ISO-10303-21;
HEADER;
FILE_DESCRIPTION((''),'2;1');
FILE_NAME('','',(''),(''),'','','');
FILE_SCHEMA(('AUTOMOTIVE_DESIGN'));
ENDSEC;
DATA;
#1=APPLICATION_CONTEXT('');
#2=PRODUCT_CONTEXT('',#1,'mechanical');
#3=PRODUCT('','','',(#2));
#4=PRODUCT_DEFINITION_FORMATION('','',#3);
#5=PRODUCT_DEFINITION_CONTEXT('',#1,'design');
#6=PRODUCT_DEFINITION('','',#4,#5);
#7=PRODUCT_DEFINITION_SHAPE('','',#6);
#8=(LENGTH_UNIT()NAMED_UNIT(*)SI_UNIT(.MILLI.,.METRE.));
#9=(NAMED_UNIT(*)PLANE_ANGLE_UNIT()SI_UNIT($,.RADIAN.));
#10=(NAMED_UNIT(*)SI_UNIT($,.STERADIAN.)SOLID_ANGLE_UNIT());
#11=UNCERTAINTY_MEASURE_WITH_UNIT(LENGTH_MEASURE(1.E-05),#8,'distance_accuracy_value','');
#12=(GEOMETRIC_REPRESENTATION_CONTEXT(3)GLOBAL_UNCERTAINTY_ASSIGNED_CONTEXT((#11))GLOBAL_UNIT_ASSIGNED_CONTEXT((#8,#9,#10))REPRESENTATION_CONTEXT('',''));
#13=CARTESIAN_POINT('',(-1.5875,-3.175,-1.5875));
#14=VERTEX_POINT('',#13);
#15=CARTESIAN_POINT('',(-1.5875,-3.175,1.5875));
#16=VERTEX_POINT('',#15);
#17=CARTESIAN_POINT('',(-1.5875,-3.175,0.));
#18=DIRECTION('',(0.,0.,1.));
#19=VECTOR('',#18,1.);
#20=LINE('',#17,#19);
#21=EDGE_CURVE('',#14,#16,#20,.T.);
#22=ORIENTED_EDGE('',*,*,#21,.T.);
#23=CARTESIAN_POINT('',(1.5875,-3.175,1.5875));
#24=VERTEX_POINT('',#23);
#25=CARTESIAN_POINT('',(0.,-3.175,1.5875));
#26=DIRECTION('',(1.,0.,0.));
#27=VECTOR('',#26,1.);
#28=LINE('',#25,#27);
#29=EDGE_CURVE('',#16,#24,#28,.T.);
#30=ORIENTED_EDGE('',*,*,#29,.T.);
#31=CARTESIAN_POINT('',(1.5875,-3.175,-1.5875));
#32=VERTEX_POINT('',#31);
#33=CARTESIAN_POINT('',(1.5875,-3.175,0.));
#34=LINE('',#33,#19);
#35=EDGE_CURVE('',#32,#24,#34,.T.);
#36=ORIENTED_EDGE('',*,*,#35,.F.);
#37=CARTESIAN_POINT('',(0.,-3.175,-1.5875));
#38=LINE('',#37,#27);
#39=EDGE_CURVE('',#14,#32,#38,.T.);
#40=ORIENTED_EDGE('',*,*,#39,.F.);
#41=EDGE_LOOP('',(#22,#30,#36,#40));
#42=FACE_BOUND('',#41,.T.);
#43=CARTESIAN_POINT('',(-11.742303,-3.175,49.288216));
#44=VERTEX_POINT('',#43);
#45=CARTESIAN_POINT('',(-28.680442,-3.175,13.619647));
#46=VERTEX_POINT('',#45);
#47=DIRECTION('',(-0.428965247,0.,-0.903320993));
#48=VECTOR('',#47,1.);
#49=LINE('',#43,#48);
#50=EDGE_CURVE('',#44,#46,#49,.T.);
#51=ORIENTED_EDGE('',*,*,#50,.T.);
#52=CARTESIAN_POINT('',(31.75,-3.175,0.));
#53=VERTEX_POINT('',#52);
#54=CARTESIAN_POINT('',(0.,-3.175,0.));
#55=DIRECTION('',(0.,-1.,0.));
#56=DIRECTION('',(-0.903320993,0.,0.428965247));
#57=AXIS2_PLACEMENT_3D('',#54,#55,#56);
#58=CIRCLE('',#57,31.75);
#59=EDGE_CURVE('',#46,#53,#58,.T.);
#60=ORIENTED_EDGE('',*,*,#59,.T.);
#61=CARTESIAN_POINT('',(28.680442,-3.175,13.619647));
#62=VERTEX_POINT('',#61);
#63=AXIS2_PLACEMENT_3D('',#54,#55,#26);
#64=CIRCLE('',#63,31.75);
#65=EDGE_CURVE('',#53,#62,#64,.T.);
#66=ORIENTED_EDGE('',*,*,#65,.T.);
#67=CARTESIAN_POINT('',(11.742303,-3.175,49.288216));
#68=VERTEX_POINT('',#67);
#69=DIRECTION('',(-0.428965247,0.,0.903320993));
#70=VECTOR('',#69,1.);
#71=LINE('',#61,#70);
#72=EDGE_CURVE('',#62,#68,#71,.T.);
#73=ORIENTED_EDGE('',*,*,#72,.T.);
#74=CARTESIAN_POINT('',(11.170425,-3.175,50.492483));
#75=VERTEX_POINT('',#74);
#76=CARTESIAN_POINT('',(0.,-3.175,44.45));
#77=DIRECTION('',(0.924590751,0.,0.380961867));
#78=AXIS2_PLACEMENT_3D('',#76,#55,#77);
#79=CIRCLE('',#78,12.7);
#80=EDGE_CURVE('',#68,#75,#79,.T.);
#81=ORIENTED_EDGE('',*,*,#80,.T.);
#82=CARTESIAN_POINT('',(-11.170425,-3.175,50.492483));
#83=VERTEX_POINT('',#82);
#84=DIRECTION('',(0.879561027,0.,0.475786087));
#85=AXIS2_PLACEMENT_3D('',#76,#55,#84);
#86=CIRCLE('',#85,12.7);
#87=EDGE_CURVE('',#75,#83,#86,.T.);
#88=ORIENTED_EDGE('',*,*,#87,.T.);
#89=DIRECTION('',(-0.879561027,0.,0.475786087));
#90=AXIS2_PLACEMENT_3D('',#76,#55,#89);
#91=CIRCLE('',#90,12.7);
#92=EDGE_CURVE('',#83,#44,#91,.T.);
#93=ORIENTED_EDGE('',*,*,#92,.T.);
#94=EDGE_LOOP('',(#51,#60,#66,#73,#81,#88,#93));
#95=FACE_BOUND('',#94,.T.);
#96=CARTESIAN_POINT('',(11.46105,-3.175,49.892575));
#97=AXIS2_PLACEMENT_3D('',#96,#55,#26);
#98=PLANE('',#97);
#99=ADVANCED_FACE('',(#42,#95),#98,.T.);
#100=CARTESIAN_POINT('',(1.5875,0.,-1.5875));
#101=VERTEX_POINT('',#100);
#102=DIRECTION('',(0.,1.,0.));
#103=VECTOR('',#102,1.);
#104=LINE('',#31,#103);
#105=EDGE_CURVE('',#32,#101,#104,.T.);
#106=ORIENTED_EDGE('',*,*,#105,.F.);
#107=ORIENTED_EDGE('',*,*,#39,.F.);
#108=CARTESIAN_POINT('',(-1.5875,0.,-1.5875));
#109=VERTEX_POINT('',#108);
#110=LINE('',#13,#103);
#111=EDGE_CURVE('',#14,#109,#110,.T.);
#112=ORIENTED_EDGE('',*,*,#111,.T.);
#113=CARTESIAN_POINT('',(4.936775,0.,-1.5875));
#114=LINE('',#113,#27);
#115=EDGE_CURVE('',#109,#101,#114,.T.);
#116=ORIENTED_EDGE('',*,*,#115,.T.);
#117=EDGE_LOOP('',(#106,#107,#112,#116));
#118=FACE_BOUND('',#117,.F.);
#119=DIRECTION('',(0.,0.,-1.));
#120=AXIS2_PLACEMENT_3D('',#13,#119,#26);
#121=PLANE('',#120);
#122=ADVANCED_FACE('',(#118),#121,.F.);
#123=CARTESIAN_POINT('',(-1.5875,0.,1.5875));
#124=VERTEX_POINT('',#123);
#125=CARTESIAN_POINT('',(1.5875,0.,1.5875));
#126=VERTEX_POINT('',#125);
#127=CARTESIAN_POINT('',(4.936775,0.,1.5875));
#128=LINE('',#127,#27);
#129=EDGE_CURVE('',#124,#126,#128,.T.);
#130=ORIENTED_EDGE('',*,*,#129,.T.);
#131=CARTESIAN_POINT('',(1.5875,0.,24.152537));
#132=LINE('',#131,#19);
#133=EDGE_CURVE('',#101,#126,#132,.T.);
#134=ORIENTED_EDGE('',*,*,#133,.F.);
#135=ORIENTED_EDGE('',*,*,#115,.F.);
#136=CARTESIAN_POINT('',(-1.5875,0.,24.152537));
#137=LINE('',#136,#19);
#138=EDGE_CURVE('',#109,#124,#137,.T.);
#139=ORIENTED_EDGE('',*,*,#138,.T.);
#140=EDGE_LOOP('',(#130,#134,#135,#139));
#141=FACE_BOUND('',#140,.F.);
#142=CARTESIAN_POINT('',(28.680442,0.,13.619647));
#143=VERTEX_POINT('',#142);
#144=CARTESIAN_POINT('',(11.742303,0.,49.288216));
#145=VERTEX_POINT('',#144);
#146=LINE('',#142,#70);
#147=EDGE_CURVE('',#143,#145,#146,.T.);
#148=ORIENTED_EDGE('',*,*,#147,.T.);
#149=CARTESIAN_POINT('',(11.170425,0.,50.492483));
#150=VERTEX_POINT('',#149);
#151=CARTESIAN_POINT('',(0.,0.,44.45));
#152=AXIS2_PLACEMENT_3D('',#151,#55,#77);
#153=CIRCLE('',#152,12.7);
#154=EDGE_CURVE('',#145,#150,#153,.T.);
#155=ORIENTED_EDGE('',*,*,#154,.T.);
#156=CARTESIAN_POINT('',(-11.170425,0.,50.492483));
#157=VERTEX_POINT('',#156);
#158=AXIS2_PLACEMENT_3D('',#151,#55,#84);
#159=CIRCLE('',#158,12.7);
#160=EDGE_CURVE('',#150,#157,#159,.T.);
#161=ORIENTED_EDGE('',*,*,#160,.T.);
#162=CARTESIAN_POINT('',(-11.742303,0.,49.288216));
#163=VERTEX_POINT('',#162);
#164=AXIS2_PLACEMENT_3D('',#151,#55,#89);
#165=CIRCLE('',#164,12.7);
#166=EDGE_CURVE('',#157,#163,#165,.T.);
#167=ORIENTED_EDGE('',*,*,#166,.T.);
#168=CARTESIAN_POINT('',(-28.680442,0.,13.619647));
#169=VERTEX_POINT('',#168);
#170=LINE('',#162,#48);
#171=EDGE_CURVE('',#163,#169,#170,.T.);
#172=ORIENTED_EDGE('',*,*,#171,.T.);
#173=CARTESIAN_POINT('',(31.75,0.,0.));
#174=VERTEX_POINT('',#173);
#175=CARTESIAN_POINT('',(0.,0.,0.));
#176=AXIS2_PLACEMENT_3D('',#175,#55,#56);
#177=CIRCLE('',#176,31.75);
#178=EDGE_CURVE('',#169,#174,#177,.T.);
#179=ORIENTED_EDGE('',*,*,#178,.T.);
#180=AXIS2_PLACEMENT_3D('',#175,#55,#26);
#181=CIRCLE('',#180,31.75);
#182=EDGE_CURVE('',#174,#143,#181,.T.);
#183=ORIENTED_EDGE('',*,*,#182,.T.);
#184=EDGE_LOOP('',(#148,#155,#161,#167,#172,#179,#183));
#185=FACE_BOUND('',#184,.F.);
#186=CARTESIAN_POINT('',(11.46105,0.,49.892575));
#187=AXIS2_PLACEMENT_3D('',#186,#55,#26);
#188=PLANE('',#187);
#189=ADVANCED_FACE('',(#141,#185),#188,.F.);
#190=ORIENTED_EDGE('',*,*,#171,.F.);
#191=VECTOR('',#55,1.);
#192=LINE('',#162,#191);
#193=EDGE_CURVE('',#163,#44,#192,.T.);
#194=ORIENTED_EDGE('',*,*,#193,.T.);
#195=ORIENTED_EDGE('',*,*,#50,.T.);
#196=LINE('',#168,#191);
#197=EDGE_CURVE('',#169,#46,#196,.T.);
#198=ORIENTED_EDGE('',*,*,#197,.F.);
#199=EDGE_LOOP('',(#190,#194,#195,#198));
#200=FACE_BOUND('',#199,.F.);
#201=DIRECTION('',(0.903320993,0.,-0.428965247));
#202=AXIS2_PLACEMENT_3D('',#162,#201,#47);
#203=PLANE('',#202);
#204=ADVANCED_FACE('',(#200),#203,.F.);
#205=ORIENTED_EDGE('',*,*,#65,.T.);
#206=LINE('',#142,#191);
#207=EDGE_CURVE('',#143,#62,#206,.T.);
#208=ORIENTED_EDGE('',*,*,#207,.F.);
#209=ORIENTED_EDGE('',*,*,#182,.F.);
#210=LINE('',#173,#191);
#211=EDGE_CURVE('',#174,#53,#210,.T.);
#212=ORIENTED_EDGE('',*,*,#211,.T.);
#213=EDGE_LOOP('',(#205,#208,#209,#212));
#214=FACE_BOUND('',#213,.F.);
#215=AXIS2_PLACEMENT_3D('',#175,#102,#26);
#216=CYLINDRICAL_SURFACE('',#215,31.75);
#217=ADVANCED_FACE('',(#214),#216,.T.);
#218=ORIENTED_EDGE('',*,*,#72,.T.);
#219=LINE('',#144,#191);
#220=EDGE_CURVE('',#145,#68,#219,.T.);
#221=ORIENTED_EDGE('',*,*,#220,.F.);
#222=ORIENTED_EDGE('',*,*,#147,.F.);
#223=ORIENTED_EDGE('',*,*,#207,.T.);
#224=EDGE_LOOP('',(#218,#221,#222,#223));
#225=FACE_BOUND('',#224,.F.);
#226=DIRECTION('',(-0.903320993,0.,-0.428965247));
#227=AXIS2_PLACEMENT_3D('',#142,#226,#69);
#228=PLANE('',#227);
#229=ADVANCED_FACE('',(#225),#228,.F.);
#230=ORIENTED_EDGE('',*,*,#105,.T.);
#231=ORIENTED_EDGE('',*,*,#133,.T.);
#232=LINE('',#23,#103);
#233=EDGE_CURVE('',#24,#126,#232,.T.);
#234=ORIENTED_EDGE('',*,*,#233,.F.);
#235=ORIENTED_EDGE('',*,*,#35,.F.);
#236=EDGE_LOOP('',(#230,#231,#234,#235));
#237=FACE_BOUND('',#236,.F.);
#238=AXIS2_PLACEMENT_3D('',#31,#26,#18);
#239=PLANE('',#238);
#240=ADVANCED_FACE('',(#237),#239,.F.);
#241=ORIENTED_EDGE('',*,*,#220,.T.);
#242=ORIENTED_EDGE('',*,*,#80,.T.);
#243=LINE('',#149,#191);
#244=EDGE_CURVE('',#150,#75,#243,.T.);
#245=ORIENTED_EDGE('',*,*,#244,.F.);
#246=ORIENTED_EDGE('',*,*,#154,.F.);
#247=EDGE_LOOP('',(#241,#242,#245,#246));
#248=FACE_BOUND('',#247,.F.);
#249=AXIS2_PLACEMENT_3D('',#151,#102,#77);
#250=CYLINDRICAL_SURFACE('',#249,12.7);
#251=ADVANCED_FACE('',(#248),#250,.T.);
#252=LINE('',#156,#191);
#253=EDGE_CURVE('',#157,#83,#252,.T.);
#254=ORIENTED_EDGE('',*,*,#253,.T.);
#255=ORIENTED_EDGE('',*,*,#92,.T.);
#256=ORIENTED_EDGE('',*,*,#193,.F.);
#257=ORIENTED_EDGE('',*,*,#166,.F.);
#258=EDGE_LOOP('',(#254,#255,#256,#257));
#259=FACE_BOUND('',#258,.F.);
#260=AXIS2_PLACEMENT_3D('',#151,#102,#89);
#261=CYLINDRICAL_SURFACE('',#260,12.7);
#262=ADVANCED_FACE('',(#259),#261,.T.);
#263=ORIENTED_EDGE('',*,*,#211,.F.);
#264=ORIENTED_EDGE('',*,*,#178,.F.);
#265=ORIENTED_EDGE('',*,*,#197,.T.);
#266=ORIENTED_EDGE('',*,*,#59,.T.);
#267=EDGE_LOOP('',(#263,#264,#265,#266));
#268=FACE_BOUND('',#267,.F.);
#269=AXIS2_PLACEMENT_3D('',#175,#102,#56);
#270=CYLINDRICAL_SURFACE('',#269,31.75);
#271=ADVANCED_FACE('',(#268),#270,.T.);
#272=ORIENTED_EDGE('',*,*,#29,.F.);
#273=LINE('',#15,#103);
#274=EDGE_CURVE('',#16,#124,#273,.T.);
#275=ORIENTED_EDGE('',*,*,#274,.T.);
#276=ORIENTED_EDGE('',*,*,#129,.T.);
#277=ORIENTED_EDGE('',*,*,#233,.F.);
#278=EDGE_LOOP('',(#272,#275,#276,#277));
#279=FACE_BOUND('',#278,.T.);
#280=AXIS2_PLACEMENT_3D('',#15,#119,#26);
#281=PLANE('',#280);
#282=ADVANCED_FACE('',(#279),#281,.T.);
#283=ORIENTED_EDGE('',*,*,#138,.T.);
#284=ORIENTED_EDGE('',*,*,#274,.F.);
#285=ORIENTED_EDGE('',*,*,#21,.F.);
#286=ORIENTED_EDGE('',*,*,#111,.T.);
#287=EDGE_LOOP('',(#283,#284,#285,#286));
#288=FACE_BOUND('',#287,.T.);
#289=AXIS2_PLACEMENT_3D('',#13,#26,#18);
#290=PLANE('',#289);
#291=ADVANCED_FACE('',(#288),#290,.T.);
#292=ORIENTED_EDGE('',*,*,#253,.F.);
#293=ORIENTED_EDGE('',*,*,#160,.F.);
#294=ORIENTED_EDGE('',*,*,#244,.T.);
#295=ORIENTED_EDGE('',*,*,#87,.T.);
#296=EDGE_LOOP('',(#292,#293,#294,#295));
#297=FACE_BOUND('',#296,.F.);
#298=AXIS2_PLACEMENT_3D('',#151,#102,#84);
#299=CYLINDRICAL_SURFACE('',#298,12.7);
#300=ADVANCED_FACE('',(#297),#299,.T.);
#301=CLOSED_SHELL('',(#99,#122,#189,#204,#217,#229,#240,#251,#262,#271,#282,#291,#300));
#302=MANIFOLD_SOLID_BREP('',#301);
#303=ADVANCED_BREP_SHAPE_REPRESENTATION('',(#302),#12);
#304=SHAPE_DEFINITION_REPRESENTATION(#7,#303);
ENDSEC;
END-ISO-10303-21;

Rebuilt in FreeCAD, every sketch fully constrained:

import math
import FreeCAD as App
import Part
import Sketcher

V = App.Vector
Q = App.Units.Quantity

doc = App.newDocument("Part")
body = doc.addObject("PartDesign::Body", "Body")

# Sketch on XZ plane
sketch1 = doc.addObject("Sketcher::SketchObject", "Sketch")
body.addObject(sketch1)
sketch1.AttachmentSupport = (doc.XZ_Plane, [""])
sketch1.MapMode = "FlatFace"
sketch1.addGeometry([
    Part.ArcOfCircle(Part.Circle(V(0, 44.45, 0), V(0, 0, 1), 12.7), math.radians(22.393276), math.radians(28.410544)),  # 0
    Part.ArcOfCircle(Part.Circle(V(0, 44.45, 0), V(0, 0, 1), 12.7), math.radians(28.410544), math.radians(151.589456)),  # 1
    Part.ArcOfCircle(Part.Circle(V(0, 44.45, 0), V(0, 0, 1), 12.7), math.radians(151.589456), math.radians(157.606724)),  # 2
    Part.LineSegment(V(-11.742303, 49.288216, 0), V(-28.680442, 13.619647, 0)),  # 3
    Part.ArcOfCircle(Part.Circle(V(0, 0, 0), V(0, 0, 1), 31.75), math.radians(154.59809), math.radians(360)),  # 4
    Part.ArcOfCircle(Part.Circle(V(0, 0, 0), V(0, 0, 1), 31.75), math.radians(0), math.radians(25.40191)),  # 5
    Part.LineSegment(V(28.680442, 13.619647, 0), V(11.742303, 49.288216, 0)),  # 6
], False)
sketch1.addConstraint([
    Sketcher.Constraint("Tangent", 0, 2, 1, 1),
    Sketcher.Constraint("Tangent", 1, 2, 2, 1),
    Sketcher.Constraint("Coincident", 2, 2, 3, 1),
    Sketcher.Constraint("Tangent", 3, 2, 4, 1),
    Sketcher.Constraint("Tangent", 4, 2, 5, 1),
    Sketcher.Constraint("Tangent", 5, 2, 6, 1),
    Sketcher.Constraint("Coincident", 6, 2, 0, 1),
    Sketcher.Constraint("Coincident", 4, 3, -1, 1),
    Sketcher.Constraint("Coincident", 2, 3, 0, 3),
    Sketcher.Constraint("Equal", 4, 5),
    Sketcher.Constraint("Symmetric", 0, 2, 1, 2, -2),
    Sketcher.Constraint("PointOnObject", 4, 2, -1),
    Sketcher.Constraint("Horizontal", 2, 2, 6, 2),
    Sketcher.Constraint("Radius", 0, Q("0.5 in")),
    Sketcher.Constraint("Radius", 4, Q("1.25 in")),
    Sketcher.Constraint("DistanceY", -1, 1, 0, 3, Q("1.75 in")),
    Sketcher.Constraint("Distance", 3, Q("39.48604 mm")),
    Sketcher.Constraint("DistanceX", 1, 2, 0, 2, Q("22.34085 mm")),
])
pad1 = doc.addObject("PartDesign::Pad", "Pad")
body.addObject(pad1)
pad1.Profile = sketch1
pad1.Length = Q("0.125 in")

# Sketch on XZ plane
sketch2 = doc.addObject("Sketcher::SketchObject", "Sketch001")
body.addObject(sketch2)
sketch2.AttachmentSupport = (doc.XZ_Plane, [""])
sketch2.MapMode = "FlatFace"
sketch2.AttachmentOffset = App.Placement(V(0, 0, 0.125 * 25.4), App.Rotation())
sketch2.addGeometry([
    Part.LineSegment(V(-1.5875, 1.5875, 0), V(-1.5875, -1.5875, 0)),
    Part.LineSegment(V(-1.5875, -1.5875, 0), V(1.5875, -1.5875, 0)),
    Part.LineSegment(V(1.5875, -1.5875, 0), V(1.5875, 1.5875, 0)),
    Part.LineSegment(V(1.5875, 1.5875, 0), V(-1.5875, 1.5875, 0)),
], False)
sketch2.addConstraint([
    Sketcher.Constraint("Coincident", 0, 2, 1, 1),
    Sketcher.Constraint("Coincident", 1, 2, 2, 1),
    Sketcher.Constraint("Coincident", 2, 2, 3, 1),
    Sketcher.Constraint("Coincident", 3, 2, 0, 1),
    Sketcher.Constraint("Vertical", 0),
    Sketcher.Constraint("Horizontal", 1),
    Sketcher.Constraint("Vertical", 2),
    Sketcher.Constraint("Horizontal", 3),
    Sketcher.Constraint("Symmetric", 0, 2, 2, 2, -1, 1),
    Sketcher.Constraint("Equal", 3, 0),
    Sketcher.Constraint("DistanceX", 1, 1, 1, 2, Q("0.125 in")),
])
pocket1 = doc.addObject("PartDesign::Pocket", "Pocket")
body.addObject(pocket1)
pocket1.Profile = sketch2
pocket1.Type = "ThroughAll"

doc.recompute()
